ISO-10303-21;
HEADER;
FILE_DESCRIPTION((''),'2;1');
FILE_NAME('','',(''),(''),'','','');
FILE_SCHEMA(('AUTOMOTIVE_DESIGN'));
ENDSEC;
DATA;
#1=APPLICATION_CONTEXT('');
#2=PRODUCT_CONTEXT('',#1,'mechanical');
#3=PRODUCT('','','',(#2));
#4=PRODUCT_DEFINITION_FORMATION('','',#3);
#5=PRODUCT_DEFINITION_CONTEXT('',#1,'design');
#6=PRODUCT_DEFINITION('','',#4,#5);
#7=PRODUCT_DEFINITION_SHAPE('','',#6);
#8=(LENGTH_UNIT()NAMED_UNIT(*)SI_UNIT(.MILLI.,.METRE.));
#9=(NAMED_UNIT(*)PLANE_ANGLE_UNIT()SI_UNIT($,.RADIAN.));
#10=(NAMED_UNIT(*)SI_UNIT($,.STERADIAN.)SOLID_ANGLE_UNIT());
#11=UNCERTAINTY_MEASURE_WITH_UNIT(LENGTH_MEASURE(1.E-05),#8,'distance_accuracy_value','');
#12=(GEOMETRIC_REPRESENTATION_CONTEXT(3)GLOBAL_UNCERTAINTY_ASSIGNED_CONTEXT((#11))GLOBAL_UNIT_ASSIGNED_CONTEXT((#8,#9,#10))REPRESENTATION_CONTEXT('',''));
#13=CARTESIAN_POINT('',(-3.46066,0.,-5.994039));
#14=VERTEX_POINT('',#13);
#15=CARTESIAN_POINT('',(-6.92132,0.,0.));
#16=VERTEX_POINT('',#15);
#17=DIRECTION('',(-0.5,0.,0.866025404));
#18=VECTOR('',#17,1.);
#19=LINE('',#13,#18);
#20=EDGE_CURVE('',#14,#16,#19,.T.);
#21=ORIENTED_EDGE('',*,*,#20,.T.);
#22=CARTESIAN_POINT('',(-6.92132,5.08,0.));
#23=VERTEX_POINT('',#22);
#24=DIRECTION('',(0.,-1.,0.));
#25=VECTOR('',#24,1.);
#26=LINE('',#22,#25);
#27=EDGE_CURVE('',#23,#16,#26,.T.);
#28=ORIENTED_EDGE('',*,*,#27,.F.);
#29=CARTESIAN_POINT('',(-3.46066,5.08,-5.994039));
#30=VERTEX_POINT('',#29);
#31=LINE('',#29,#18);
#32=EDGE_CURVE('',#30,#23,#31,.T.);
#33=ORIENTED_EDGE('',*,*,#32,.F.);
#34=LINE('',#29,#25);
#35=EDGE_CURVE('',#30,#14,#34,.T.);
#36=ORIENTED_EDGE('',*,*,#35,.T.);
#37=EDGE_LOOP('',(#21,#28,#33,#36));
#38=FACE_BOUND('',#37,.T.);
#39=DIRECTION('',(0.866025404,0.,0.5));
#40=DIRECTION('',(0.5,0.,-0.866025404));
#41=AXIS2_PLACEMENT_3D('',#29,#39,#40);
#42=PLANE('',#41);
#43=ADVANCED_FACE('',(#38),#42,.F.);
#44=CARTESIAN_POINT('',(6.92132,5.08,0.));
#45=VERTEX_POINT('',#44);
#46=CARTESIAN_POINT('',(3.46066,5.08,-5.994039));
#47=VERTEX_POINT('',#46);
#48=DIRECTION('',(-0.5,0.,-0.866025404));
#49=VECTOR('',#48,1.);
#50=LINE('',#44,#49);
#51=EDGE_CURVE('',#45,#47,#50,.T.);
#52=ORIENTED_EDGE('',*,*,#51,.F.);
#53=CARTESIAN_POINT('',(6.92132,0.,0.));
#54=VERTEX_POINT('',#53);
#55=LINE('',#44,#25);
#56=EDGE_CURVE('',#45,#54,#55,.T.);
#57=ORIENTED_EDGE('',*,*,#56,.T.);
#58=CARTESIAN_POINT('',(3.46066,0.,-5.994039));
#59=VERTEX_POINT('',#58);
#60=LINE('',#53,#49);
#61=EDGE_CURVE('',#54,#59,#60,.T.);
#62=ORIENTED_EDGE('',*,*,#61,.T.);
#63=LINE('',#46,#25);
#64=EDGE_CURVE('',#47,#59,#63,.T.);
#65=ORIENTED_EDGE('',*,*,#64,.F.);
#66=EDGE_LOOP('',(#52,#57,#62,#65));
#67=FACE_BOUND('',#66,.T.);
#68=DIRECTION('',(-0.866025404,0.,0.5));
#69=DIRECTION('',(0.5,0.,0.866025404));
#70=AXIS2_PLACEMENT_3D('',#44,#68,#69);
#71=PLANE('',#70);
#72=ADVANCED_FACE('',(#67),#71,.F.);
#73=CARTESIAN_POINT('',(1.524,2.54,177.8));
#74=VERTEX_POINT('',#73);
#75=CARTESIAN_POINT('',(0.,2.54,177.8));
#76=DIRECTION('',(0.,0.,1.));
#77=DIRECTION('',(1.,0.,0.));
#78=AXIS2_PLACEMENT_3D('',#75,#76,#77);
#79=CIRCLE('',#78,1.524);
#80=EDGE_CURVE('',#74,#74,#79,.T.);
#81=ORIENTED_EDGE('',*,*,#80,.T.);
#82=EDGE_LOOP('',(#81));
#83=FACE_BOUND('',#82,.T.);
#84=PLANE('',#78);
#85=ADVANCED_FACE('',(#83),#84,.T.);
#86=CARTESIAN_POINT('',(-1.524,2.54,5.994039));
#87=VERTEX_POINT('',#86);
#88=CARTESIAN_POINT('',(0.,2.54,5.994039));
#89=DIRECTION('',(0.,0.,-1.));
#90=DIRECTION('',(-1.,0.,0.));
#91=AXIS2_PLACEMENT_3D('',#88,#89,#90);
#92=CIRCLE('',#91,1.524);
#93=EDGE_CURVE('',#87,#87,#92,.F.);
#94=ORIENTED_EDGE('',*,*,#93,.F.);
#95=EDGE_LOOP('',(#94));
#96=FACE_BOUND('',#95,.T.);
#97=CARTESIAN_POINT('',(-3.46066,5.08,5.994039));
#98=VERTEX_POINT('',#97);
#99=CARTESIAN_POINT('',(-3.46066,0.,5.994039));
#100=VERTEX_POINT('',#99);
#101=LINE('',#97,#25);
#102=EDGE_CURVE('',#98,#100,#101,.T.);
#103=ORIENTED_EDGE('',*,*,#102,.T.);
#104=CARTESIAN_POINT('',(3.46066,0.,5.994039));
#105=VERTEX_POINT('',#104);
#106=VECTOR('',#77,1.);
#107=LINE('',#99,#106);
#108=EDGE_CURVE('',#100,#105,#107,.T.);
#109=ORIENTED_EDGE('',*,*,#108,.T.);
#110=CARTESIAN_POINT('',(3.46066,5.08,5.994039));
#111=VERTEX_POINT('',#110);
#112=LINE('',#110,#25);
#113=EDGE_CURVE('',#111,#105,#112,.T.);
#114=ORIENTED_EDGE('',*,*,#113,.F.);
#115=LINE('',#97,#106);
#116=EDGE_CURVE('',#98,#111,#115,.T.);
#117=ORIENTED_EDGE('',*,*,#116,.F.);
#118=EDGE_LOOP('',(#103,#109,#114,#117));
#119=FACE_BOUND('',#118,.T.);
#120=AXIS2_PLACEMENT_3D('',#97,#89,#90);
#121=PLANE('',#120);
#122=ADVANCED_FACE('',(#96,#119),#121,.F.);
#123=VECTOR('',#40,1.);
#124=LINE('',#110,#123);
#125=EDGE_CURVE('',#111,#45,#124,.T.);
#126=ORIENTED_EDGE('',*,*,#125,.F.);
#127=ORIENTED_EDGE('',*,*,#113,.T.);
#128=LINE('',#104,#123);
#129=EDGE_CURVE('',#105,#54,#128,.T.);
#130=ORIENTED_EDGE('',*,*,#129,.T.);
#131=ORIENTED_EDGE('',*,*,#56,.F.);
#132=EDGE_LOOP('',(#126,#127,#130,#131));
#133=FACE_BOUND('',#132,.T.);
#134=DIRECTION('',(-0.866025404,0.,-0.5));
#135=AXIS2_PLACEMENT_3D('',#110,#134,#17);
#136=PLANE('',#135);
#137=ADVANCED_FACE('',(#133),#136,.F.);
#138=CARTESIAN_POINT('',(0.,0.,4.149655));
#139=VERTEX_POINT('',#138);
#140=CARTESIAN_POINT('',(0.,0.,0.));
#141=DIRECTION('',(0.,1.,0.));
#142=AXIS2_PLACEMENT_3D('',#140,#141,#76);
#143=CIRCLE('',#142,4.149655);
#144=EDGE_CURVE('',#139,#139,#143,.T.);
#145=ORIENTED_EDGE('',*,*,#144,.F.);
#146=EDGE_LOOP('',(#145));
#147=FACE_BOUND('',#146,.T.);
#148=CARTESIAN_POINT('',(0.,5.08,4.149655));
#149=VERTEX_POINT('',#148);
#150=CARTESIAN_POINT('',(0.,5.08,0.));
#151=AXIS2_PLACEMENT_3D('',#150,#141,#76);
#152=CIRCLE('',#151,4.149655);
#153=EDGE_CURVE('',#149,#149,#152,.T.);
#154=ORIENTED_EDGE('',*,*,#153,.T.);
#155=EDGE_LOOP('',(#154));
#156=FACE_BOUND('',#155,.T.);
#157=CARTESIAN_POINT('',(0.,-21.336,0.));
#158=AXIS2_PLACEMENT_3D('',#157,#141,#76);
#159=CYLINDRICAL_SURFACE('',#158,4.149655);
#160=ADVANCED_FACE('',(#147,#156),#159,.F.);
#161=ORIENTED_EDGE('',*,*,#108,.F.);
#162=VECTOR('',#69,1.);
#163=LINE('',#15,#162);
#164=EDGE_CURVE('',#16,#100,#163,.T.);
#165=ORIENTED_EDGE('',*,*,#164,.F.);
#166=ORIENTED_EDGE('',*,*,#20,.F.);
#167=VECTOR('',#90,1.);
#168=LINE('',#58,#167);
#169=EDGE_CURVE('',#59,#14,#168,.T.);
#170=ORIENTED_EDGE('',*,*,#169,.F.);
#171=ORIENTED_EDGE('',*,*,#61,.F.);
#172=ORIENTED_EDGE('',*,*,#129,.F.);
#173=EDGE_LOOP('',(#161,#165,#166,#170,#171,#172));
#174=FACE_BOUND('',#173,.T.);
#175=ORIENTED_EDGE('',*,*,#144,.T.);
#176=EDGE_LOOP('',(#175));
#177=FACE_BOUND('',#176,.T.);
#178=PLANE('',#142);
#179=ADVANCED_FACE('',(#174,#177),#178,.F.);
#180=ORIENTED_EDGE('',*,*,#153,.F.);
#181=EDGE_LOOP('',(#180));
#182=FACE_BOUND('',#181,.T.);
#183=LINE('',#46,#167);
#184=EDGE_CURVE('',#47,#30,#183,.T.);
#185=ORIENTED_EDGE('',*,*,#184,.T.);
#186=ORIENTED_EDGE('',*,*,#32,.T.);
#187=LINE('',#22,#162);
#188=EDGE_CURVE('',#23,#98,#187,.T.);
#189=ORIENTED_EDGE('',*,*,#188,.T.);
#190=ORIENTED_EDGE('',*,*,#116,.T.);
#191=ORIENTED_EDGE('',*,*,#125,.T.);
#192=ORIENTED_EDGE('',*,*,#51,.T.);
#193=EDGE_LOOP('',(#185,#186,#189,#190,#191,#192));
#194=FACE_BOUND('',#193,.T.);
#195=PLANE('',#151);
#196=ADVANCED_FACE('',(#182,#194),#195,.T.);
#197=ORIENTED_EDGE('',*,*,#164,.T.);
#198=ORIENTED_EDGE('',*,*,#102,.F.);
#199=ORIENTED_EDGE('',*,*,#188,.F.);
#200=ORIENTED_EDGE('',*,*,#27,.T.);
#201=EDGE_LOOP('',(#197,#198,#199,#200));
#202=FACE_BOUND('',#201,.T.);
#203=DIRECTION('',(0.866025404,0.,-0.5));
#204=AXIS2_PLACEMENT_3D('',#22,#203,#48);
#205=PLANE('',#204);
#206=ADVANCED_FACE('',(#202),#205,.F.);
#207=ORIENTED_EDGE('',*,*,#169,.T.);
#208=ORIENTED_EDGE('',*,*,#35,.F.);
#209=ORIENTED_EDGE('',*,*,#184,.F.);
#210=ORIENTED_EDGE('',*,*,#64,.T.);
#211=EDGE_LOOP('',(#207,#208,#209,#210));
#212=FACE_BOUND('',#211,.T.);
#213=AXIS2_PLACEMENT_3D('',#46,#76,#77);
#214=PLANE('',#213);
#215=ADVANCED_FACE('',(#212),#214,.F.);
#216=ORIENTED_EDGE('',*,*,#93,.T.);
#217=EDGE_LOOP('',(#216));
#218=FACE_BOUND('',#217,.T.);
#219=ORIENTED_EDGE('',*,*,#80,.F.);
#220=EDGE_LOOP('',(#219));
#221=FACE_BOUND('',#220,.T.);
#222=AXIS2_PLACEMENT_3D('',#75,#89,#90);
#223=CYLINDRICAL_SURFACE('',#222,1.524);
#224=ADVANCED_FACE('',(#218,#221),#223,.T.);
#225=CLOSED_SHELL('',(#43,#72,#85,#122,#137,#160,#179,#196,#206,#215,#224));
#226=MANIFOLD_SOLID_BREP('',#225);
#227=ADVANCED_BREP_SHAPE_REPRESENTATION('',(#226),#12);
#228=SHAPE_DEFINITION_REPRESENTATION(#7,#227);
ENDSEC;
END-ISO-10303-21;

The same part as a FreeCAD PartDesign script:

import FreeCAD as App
import Part
import Sketcher
Q = App.Units.Quantity

doc = App.newDocument("Part")
params = doc.addObject("Spreadsheet::Sheet", "Params")
for row, (alias, value) in enumerate([
    ("pad1_length", "0.2 in"),
    ("sketch2_diameter", "0.12 in"),
    ("pad2_length", "7 in"),
    ("pad2_length2", "0.1 in"),
], start=1):
    params.set(f"A{row}", alias)
    params.set(f"B{row}", "=" + value)
    params.setAlias(f"B{row}", alias)

body = doc.addObject("PartDesign::Body", "Body")

sketch1 = body.newObject("Sketcher::SketchObject", "Sketch")
sketch1.AttachmentSupport = (doc.getObject("XZ_Plane"), [""])
sketch1.MapMode = "FlatFace"
sketch1.addGeometry(Part.LineSegment(App.Vector(6.92132, 0, 0), App.Vector(3.46066, -5.994039, 0)), False)
sketch1.addGeometry(Part.LineSegment(App.Vector(3.46066, -5.994039, 0), App.Vector(-3.46066, -5.994039, 0)), False)
sketch1.addGeometry(Part.LineSegment(App.Vector(-3.46066, -5.994039, 0), App.Vector(-6.92132, 0, 0)), False)
sketch1.addGeometry(Part.LineSegment(App.Vector(-6.92132, 0, 0), App.Vector(-3.46066, 5.994039, 0)), False)
sketch1.addGeometry(Part.LineSegment(App.Vector(-3.46066, 5.994039, 0), App.Vector(3.46066, 5.994039, 0)), False)
sketch1.addGeometry(Part.LineSegment(App.Vector(3.46066, 5.994039, 0), App.Vector(6.92132, 0, 0)), False)
sketch1.addGeometry(Part.Circle(App.Vector(0, 0, 0), App.Vector(0, 0, 1), 3.97256), False)
sketch1.addConstraint(Sketcher.Constraint("Coincident", 0, 2, 1, 1))
sketch1.addConstraint(Sketcher.Constraint("Coincident", 1, 2, 2, 1))
sketch1.addConstraint(Sketcher.Constraint("Coincident", 2, 2, 3, 1))
sketch1.addConstraint(Sketcher.Constraint("Coincident", 3, 2, 4, 1))
sketch1.addConstraint(Sketcher.Constraint("Coincident", 4, 2, 5, 1))
sketch1.addConstraint(Sketcher.Constraint("Coincident", 5, 2, 0, 1))
sketch1.addConstraint(Sketcher.Constraint("Horizontal", 1))
sketch1.addConstraint(Sketcher.Constraint("Horizontal", 4))
sketch1.addConstraint(Sketcher.Constraint("Coincident", 6, 3, -1, 1))
sketch1.addConstraint(Sketcher.Constraint("Symmetric", 0, 2, 3, 2, -1, 1))
sketch1.addConstraint(Sketcher.Constraint("Symmetric", 2, 2, 5, 2, -1, 1))
sketch1.addConstraint(Sketcher.Constraint("PointOnObject", 2, 2, -1))
sketch1.addConstraint(Sketcher.Constraint("Parallel", 2, 5))
sketch1.addConstraint(Sketcher.Constraint("Vertical", 1, 2, 3, 2))
sketch1.addConstraint(Sketcher.Constraint("Angle", 0, Q("-120 deg")))
sketch1.addConstraint(Sketcher.Constraint("Diameter", 6, Q("0.3128 in")))
sketch1.addConstraint(Sketcher.Constraint("DistanceX", 1, 2, 1, 1, 6.92132))
sketch1.addConstraint(Sketcher.Constraint("Distance", 0, 6.92132))
pad1 = body.newObject("PartDesign::Pad", "Pad")
pad1.Profile = sketch1
pad1.setExpression("Length", "Params.pad1_length")
pad1.Reversed = True

sketch2 = body.newObject("Sketcher::SketchObject", "Sketch001")
sketch2.AttachmentSupport = (doc.getObject("XY_Plane"), [""])
sketch2.MapMode = "FlatFace"
sketch2.addGeometry(Part.Circle(App.Vector(0, 2.54, 0), App.Vector(0, 0, 1), 1.524), False)
sketch2.addConstraint(Sketcher.Constraint("PointOnObject", 0, 3, -2))
sketch2.addConstraint(Sketcher.Constraint("Diameter", 0, Q("0.12 in")))
sketch2.addConstraint(Sketcher.Constraint("DistanceY", -1, 1, 0, 3, Q("0.1 in")))
sketch2.setExpression("Constraints[1]", "Params.sketch2_diameter")
pad2 = body.newObject("PartDesign::Pad", "Pad001")
pad2.Profile = sketch2
pad2.Type = "TwoLengths"
pad2.setExpression("Length", "Params.pad2_length")
pad2.setExpression("Length2", "Params.pad2_length2")

sketch3 = body.newObject("Sketcher::SketchObject", "Sketch002")
sketch3.AttachmentSupport = (doc.getObject("XZ_Plane"), [""])
sketch3.MapMode = "FlatFace"
sketch3.addGeometry(Part.Circle(App.Vector(0, 0, 0), App.Vector(0, 0, 1), 4.149655), False)
sketch3.addConstraint(Sketcher.Constraint("Coincident", 0, 3, -1, 1))
sketch3.addConstraint(Sketcher.Constraint("Diameter", 0, 8.299311))
pocket1 = body.newObject("PartDesign::Pocket", "Pocket")
pocket1.Profile = sketch3
pocket1.Type = "ThroughAll"
pocket1.Midplane = True

doc.recompute()
